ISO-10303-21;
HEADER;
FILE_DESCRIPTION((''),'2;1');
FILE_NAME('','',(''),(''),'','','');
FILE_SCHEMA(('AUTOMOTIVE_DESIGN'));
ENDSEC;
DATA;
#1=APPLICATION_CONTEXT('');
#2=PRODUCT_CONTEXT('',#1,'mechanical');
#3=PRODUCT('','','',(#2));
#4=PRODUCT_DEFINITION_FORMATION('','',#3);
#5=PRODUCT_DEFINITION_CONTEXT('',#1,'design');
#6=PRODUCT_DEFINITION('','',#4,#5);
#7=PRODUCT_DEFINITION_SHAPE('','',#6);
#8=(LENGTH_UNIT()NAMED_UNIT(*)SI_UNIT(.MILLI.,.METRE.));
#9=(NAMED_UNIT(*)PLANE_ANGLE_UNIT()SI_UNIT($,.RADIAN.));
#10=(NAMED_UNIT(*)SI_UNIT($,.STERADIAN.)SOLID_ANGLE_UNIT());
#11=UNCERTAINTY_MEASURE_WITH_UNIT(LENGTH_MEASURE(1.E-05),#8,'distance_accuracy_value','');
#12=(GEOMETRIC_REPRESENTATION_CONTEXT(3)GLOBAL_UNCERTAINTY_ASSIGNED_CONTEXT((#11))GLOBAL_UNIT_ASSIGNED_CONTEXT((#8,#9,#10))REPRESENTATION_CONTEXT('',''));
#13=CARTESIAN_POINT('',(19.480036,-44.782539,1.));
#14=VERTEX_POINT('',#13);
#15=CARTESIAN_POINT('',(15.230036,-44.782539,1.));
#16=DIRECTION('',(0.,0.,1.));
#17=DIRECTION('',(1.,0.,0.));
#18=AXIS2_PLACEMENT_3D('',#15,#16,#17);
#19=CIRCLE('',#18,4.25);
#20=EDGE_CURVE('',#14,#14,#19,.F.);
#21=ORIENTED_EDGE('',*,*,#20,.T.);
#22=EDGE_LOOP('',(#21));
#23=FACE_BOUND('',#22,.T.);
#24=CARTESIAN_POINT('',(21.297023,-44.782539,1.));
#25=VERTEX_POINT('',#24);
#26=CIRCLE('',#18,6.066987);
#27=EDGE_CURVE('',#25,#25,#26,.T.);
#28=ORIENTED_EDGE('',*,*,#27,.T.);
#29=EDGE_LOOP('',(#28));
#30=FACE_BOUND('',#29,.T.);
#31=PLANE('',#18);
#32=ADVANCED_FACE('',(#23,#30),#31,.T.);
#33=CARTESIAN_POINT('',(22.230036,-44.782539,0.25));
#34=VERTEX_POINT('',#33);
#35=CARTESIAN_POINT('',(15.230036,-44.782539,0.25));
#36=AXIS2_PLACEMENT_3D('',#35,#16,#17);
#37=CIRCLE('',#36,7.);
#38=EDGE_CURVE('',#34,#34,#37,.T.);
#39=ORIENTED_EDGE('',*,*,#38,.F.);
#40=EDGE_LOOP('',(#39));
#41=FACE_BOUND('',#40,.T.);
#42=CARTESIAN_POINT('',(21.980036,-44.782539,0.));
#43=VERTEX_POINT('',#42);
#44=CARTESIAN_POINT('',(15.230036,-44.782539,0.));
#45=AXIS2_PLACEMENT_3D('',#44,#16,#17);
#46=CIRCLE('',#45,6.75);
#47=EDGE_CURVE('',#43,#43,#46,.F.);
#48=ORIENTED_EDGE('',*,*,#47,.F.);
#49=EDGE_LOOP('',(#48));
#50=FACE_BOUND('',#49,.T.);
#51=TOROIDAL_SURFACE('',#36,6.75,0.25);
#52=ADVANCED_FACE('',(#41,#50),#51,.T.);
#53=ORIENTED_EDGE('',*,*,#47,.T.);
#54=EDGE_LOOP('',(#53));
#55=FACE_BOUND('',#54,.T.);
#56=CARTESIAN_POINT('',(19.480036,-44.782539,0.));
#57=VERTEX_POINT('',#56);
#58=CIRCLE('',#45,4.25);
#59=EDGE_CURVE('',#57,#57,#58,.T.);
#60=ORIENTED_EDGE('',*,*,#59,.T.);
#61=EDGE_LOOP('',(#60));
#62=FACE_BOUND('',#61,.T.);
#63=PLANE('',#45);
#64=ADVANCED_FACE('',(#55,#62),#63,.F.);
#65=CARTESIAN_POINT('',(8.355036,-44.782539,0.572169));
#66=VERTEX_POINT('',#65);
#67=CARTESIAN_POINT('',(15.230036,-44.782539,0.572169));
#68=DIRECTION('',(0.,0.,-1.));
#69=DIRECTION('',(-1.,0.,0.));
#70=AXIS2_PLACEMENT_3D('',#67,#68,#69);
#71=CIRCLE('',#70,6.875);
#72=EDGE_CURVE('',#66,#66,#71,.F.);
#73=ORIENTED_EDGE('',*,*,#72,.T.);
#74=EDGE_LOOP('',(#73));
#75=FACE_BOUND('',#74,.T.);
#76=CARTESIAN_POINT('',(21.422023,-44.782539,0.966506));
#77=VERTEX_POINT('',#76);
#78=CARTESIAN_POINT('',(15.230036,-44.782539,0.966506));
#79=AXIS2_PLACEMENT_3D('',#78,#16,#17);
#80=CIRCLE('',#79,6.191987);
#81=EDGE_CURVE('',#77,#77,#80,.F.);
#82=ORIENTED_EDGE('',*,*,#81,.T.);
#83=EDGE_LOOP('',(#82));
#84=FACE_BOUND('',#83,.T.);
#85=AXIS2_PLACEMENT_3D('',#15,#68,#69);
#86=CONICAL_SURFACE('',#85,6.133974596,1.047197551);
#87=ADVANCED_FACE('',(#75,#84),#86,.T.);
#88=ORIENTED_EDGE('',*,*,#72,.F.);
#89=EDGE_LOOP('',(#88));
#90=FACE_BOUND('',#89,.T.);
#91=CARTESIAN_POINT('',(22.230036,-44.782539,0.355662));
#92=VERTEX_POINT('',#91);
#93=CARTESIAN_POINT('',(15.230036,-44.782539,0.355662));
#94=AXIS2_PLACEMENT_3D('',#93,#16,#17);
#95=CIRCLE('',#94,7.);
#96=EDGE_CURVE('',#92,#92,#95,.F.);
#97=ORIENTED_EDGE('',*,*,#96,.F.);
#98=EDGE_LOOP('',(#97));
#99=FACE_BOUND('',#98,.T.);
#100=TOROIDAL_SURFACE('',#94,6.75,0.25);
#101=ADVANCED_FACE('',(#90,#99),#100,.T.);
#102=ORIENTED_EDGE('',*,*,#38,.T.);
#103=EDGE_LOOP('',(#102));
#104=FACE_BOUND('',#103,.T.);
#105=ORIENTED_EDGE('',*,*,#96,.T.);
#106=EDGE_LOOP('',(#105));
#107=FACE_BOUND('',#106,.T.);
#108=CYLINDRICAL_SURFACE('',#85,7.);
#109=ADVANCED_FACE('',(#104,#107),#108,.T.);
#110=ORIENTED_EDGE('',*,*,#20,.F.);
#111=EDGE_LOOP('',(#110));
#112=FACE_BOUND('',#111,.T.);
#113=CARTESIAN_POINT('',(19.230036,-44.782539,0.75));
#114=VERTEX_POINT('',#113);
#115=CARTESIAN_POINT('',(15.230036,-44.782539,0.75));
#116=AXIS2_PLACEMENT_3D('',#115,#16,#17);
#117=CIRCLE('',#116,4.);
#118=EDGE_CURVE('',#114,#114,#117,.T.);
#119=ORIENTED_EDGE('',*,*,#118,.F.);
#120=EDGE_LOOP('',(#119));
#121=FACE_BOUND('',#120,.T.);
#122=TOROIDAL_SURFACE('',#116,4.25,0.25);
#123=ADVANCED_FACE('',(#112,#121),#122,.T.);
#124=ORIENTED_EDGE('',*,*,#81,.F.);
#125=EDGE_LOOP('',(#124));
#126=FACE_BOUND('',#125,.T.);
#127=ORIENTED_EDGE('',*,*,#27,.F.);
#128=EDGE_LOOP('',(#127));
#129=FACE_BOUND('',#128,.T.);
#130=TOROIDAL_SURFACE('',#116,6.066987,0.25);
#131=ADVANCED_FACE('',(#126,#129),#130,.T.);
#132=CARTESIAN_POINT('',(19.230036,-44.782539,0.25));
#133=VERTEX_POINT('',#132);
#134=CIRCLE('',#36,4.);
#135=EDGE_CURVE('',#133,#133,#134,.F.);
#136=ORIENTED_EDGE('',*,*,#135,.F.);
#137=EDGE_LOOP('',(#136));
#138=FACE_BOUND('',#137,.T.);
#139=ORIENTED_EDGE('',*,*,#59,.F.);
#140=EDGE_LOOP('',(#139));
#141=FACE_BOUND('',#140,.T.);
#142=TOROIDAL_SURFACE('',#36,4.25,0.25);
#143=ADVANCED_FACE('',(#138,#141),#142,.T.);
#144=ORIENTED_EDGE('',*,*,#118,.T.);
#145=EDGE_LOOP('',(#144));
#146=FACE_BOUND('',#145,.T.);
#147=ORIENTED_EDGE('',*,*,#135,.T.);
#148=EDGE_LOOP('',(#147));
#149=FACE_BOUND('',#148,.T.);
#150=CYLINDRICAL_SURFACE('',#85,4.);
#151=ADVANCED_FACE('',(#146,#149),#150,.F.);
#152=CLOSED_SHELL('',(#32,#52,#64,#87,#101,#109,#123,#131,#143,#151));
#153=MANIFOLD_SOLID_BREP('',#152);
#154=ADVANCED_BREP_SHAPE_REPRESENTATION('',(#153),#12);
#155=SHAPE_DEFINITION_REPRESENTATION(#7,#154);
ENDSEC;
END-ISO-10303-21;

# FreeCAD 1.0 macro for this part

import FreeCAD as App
import Part
import Sketcher


def edges_at(feature, points):
    """Names of the edges that pass closest to the given points."""
    edges = feature.Shape.Edges
    near = lambda p: min(range(len(edges)), key=lambda i: edges[i].distToShape(Part.Vertex(*p))[0])
    return sorted({f"Edge{near(p) + 1}" for p in points})

doc = App.newDocument("Part")
params = doc.addObject("Spreadsheet::Sheet", "Params")
for row, (alias, value) in enumerate([
    ("sketch1_diameter", "14 mm"),
    ("sketch1_diameter2", "8 mm"),
    ("pad1_length", "1 mm"),
    ("chamfer_size", "0.5 mm"),
    ("chamfer_size2", "0.866025 mm"),
    ("fillet_radius", "0.25 mm"),
], start=1):
    params.set(f"A{row}", alias)
    params.set(f"B{row}", "=" + value)
    params.setAlias(f"B{row}", alias)

body = doc.addObject("PartDesign::Body", "Body")

# Sketch on XY plane
sketch1 = body.newObject("Sketcher::SketchObject", "Sketch")
sketch1.AttachmentSupport = (doc.getObject("XY_Plane"), [""])
sketch1.MapMode = "FlatFace"
sketch1.addGeometry([
    Part.Circle(App.Vector(15.2, -44.8, 0), App.Vector(0, 0, 1), 7),
    Part.Circle(App.Vector(15.2, -44.8, 0), App.Vector(0, 0, 1), 4),
], False)
sketch1.addConstraint([
    Sketcher.Constraint("Coincident", 1, 3, 0, 3),
    Sketcher.Constraint("Diameter", 0, 14.0),
    Sketcher.Constraint("Diameter", 1, 8.0),
    Sketcher.Constraint("DistanceY", 0, 3, -1, 1, 44.782539),
    Sketcher.Constraint("DistanceX", -1, 1, 0, 3, 15.230036),
])
sketch1.setExpression("Constraints[1]", "Params.sketch1_diameter")
sketch1.setExpression("Constraints[2]", "Params.sketch1_diameter2")
pad1 = body.newObject("PartDesign::Pad", "Pad")
pad1.Profile = sketch1
pad1.setExpression("Length", "Params.pad1_length")
doc.recompute()

chamfer = body.newObject("PartDesign::Chamfer", "Chamfer")
chamfer.Base = (pad1, edges_at(pad1, [(8.23, -44.783, 1)]))
chamfer.ChamferType = "Two distances"
chamfer.setExpression("Size", "Params.chamfer_size")
chamfer.setExpression("Size2", "Params.chamfer_size2")
doc.recompute()

fillet = body.newObject("PartDesign::Fillet", "Fillet")
fillet.Base = (chamfer, edges_at(chamfer, [
    (8.23, -44.783, 0),
    (11.23, -44.783, 0),
    (11.23, -44.783, 1),
    (9.096, -44.783, 1),
    (8.23, -44.783, 0.5),
]))
fillet.setExpression("Radius", "Params.fillet_radius")

doc.recompute()
